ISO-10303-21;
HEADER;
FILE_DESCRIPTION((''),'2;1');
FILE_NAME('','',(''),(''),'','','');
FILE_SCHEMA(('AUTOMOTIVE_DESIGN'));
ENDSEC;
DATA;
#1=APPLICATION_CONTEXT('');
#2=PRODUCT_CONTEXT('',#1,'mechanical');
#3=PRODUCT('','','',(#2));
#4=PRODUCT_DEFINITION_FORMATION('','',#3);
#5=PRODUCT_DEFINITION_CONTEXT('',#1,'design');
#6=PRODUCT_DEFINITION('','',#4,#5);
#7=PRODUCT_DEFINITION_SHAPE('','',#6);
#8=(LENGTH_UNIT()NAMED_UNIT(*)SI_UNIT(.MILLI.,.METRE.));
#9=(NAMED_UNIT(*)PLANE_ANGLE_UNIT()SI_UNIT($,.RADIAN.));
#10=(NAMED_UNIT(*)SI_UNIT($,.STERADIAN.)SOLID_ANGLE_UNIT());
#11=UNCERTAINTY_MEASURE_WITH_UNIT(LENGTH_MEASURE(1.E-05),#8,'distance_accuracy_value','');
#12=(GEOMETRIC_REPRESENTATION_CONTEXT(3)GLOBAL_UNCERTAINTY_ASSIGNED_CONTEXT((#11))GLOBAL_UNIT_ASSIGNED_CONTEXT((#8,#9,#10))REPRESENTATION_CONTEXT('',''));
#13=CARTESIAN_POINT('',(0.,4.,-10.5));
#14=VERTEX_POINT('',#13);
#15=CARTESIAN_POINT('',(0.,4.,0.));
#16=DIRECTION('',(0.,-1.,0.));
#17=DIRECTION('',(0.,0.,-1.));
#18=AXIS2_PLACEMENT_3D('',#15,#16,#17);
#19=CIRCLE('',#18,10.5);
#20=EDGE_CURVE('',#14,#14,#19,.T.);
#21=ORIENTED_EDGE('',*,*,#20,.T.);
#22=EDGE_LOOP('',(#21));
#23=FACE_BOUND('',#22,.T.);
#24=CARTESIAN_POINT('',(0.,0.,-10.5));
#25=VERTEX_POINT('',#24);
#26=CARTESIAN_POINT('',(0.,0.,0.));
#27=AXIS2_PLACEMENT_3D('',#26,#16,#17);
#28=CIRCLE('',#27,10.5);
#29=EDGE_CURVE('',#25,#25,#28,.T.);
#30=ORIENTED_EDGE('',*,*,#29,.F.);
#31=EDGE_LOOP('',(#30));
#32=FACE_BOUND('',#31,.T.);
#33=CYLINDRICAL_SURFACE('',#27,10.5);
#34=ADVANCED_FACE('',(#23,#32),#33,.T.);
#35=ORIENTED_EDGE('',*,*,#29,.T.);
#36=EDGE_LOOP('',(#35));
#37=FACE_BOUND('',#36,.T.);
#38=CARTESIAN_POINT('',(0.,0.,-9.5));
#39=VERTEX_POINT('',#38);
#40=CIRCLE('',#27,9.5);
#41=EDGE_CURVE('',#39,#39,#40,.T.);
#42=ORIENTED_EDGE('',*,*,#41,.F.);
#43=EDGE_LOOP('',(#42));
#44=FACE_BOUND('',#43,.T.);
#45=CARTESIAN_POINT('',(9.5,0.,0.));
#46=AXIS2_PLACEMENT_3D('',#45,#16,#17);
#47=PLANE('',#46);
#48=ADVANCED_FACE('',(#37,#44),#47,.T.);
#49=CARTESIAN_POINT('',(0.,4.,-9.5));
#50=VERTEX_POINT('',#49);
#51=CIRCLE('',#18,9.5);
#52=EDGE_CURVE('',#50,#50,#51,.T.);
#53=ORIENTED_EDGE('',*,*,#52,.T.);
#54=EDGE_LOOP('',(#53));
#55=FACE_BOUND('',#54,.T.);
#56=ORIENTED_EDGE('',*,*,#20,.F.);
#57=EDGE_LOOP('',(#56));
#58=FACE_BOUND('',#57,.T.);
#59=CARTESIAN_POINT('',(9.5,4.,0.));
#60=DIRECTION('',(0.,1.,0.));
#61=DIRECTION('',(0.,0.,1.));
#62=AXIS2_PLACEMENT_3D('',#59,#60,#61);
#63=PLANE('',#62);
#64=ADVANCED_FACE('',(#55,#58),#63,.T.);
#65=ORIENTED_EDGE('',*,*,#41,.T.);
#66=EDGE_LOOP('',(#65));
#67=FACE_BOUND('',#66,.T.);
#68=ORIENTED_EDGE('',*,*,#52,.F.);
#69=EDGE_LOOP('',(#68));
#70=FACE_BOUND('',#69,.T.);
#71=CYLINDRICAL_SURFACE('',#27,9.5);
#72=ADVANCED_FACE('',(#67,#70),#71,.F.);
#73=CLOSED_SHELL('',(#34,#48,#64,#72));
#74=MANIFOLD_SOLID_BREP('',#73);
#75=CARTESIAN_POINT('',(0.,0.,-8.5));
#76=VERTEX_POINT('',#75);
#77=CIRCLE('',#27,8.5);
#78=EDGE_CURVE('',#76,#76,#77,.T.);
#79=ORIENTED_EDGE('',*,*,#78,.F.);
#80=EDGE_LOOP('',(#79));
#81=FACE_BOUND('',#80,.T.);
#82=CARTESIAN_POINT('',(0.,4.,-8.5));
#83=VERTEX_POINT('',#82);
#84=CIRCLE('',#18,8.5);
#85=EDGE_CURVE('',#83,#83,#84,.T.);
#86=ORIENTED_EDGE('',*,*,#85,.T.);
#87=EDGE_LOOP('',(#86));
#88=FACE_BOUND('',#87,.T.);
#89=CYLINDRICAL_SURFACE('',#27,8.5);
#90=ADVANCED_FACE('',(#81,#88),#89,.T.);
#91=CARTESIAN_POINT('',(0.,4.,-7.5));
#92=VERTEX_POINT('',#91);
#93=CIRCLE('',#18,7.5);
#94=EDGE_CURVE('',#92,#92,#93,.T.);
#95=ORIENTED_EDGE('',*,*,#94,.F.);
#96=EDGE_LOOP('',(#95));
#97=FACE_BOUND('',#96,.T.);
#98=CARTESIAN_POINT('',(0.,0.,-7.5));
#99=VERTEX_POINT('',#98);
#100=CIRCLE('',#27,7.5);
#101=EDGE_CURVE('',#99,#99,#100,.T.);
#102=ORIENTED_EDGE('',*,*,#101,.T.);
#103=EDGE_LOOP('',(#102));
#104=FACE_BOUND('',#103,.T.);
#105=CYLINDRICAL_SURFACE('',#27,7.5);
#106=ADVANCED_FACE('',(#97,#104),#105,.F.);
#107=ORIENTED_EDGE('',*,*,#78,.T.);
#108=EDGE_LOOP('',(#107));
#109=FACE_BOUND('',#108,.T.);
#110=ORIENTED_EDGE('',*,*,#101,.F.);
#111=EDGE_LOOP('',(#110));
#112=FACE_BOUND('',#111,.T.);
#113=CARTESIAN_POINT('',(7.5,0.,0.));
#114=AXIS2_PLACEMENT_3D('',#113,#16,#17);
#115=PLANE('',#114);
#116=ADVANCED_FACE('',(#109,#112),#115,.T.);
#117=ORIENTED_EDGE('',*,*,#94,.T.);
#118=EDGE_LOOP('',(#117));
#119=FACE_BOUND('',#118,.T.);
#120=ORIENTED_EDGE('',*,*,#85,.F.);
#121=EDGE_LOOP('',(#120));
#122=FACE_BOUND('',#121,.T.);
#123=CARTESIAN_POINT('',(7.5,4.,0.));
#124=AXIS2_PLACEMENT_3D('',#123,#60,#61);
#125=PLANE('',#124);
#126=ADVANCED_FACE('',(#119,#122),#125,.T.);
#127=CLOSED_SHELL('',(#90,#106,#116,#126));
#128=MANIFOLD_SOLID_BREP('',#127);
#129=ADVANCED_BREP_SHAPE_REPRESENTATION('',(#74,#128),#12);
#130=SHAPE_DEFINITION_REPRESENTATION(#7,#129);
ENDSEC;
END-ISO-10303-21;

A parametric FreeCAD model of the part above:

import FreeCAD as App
import Part
import Sketcher

doc = App.newDocument("Part")
params = doc.addObject("Spreadsheet::Sheet", "Params")
for row, (alias, value) in enumerate([
    ("sketch1_width", "1 mm"),
    ("sketch1_height", "4 mm"),
    ("revolution_angle", "360 deg"),
], start=1):
    params.set(f"A{row}", alias)
    params.set(f"B{row}", "=" + value)
    params.setAlias(f"B{row}", alias)

body = doc.addObject("PartDesign::Body", "Body")
body.AllowCompound = True

sketch1 = body.newObject("Sketcher::SketchObject", "Sketch")
sketch1.AttachmentSupport = (doc.getObject("XY_Plane"), [""])
sketch1.MapMode = "FlatFace"
sketch1.addGeometry([
    Part.LineSegment(App.Vector(7.5, 4, 0), App.Vector(7.5, 0, 0)),
    Part.LineSegment(App.Vector(7.5, 0, 0), App.Vector(8.5, 0, 0)),
    Part.LineSegment(App.Vector(8.5, 0, 0), App.Vector(8.5, 4, 0)),
    Part.LineSegment(App.Vector(8.5, 4, 0), App.Vector(7.5, 4, 0)),
    Part.LineSegment(App.Vector(9.5, 4, 0), App.Vector(9.5, 0, 0)),
    Part.LineSegment(App.Vector(9.5, 0, 0), App.Vector(10.5, 0, 0)),
    Part.LineSegment(App.Vector(10.5, 0, 0), App.Vector(10.5, 4, 0)),
    Part.LineSegment(App.Vector(10.5, 4, 0), App.Vector(9.5, 4, 0)),
], False)
sketch1.addConstraint([
    Sketcher.Constraint("Coincident", 0, 2, 1, 1),
    Sketcher.Constraint("Coincident", 1, 2, 2, 1),
    Sketcher.Constraint("Coincident", 2, 2, 3, 1),
    Sketcher.Constraint("Coincident", 3, 2, 0, 1),
    Sketcher.Constraint("Coincident", 4, 2, 5, 1),
    Sketcher.Constraint("Coincident", 5, 2, 6, 1),
    Sketcher.Constraint("Coincident", 6, 2, 7, 1),
    Sketcher.Constraint("Coincident", 7, 2, 4, 1),
    Sketcher.Constraint("Vertical", 0),
    Sketcher.Constraint("Horizontal", 1),
    Sketcher.Constraint("Vertical", 2),
    Sketcher.Constraint("Horizontal", 3),
    Sketcher.Constraint("Vertical", 4),
    Sketcher.Constraint("Horizontal", 5),
    Sketcher.Constraint("Vertical", 6),
    Sketcher.Constraint("Horizontal", 7),
    Sketcher.Constraint("PointOnObject", 0, 2, -1),
    Sketcher.Constraint("PointOnObject", 4, 2, -1),
    Sketcher.Constraint("Horizontal", 3, 2, 6, 2),
    Sketcher.Constraint("Equal", 3, 5),
    Sketcher.Constraint("DistanceX", 1, 1, 1, 2, 1.0),
    Sketcher.Constraint("DistanceY", 0, 2, 0, 1, 4.0),
    Sketcher.Constraint("DistanceX", 1, 2, 4, 2, 1.0),
    Sketcher.Constraint("DistanceX", -1, 1, 0, 2, 7.5),
])
sketch1.setExpression("Constraints[20]", "Params.sketch1_width")
sketch1.setExpression("Constraints[21]", "Params.sketch1_height")
revolution = body.newObject("PartDesign::Revolution", "Revolution")
revolution.Profile = sketch1
revolution.ReferenceAxis = (sketch1, ["V_Axis"])
revolution.setExpression("Angle", "Params.revolution_angle")

doc.recompute()
